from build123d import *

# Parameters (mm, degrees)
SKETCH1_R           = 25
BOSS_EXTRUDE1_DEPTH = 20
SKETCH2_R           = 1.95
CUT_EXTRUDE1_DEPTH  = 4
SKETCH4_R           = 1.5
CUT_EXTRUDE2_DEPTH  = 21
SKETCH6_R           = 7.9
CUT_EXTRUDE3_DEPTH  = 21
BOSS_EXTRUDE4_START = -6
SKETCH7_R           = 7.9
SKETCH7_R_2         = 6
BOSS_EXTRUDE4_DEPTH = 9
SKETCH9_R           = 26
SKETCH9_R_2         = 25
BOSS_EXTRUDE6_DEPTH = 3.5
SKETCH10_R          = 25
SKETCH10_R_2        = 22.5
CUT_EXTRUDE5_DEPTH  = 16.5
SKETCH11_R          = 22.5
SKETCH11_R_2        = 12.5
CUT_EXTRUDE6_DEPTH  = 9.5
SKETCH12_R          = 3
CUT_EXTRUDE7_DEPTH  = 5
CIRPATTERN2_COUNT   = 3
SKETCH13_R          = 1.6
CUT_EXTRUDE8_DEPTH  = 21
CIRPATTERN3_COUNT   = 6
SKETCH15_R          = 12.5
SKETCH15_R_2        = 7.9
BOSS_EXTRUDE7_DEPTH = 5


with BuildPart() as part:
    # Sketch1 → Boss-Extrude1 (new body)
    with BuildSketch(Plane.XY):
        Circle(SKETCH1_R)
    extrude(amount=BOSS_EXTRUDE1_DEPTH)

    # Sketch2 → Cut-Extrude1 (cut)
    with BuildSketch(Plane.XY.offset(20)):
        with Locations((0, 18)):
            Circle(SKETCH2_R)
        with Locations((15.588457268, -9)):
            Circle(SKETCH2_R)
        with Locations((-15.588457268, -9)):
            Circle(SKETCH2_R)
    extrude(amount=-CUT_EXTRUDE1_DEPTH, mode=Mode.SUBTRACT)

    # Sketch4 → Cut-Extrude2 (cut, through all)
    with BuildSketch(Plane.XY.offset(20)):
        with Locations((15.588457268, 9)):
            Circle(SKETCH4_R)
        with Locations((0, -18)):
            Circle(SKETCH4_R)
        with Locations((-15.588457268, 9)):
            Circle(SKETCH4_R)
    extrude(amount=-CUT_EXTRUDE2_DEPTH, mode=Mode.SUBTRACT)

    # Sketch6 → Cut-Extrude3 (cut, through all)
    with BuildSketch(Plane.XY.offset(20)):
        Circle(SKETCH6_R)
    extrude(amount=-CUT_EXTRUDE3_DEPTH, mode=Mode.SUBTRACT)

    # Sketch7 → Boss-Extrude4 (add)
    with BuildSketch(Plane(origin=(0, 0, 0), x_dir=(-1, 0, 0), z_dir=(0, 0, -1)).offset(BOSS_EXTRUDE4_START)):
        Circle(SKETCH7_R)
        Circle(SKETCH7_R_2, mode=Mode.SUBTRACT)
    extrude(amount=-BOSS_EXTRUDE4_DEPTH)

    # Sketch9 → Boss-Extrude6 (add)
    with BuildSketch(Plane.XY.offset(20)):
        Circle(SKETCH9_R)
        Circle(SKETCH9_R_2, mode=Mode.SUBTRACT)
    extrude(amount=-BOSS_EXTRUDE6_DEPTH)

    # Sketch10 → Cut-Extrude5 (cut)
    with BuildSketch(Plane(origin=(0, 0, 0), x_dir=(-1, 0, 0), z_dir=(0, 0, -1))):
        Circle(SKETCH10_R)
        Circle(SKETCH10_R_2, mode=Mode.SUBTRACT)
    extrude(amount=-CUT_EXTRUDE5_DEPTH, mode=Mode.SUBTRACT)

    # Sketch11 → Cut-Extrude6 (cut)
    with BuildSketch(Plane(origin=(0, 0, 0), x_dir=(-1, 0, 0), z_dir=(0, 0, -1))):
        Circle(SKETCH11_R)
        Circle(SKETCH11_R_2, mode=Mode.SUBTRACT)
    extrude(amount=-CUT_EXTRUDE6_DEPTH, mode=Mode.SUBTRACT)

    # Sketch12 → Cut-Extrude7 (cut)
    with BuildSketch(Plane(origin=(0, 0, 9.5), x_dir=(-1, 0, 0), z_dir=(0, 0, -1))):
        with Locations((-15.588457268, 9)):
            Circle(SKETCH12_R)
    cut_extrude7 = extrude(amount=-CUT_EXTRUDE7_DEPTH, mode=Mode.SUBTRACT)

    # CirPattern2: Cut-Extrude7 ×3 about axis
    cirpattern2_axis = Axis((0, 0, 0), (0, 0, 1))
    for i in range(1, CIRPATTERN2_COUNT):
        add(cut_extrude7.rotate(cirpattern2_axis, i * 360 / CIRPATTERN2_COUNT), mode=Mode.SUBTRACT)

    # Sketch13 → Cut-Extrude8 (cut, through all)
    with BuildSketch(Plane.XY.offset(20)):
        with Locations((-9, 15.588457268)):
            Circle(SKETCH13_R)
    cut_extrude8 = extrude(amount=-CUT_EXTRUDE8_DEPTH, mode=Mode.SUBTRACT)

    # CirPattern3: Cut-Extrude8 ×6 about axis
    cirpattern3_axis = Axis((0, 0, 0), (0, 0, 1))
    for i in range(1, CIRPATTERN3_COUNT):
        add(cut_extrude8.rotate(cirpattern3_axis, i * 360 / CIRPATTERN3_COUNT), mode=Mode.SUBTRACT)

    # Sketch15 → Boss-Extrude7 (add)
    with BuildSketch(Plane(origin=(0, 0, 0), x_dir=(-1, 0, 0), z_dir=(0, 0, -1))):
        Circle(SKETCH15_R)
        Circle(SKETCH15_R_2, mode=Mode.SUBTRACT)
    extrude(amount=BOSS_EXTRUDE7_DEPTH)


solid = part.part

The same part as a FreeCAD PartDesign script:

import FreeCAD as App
import Part
import Sketcher
Q = App.Units.Quantity

doc = App.newDocument("Part")
body = doc.addObject("PartDesign::Body", "Body")

# Sketch on XY plane
sketch1 = body.newObject("Sketcher::SketchObject", "Sketch")
sketch1.AttachmentSupport = (doc.getObject("XY_Plane"), [""])
sketch1.MapMode = "FlatFace"
sketch1.addGeometry(Part.Circle(App.Vector(0, 0, 0), App.Vector(0, 0, 1), 25), False)
sketch1.addConstraint(Sketcher.Constraint("Coincident", 0, 3, -1, 1))
sketch1.addConstraint(Sketcher.Constraint("Diameter", 0, Q("50 mm")))
pad1 = body.newObject("PartDesign::Pad", "Pad")
pad1.Profile = sketch1
pad1.Length = 20

# Sketch on XY plane
sketch2 = body.newObject("Sketcher::SketchObject", "Sketch001")
sketch2.AttachmentSupport = (doc.getObject("XY_Plane"), [""])
sketch2.MapMode = "FlatFace"
sketch2.AttachmentOffset = App.Placement(App.Vector(0, 0, 20), App.Rotation())
sketch2.addGeometry(Part.Circle(App.Vector(0, 18, 0), App.Vector(0, 0, 1), 1.9), False)
sketch2.addGeometry(Part.Circle(App.Vector(15.6, -9, 0), App.Vector(0, 0, 1), 1.9), False)
sketch2.addGeometry(Part.Circle(App.Vector(-15.6, -9, 0), App.Vector(0, 0, 1), 1.9), False)
sketch2.addConstraint(Sketcher.Constraint("Equal", 0, 1))
sketch2.addConstraint(Sketcher.Constraint("Equal", 1, 2))
sketch2.addConstraint(Sketcher.Constraint("Symmetric", 1, 3, 2, 3, -2))
sketch2.addConstraint(Sketcher.Constraint("PointOnObject", 0, 3, -2))
sketch2.addConstraint(Sketcher.Constraint("Diameter", 0, Q("3.9 mm")))
sketch2.addConstraint(Sketcher.Constraint("DistanceY", -1, 1, 0, 3, Q("18 mm")))
sketch2.addConstraint(Sketcher.Constraint("DistanceY", 1, 3, -1, 1, Q("9 mm")))
sketch2.addConstraint(Sketcher.Constraint("DistanceX", -1, 1, 1, 3, Q("15.588457 mm")))
pocket1 = body.newObject("PartDesign::Pocket", "Pocket")
pocket1.Profile = sketch2
pocket1.Length = 4

# Sketch on XY plane
sketch3 = body.newObject("Sketcher::SketchObject", "Sketch002")
sketch3.AttachmentSupport = (doc.getObject("XY_Plane"), [""])
sketch3.MapMode = "FlatFace"
sketch3.AttachmentOffset = App.Placement(App.Vector(0, 0, 20), App.Rotation())
sketch3.addGeometry(Part.Circle(App.Vector(15.6, 9, 0), App.Vector(0, 0, 1), 1.5), False)
sketch3.addGeometry(Part.Circle(App.Vector(0, -18, 0), App.Vector(0, 0, 1), 1.5), False)
sketch3.addGeometry(Part.Circle(App.Vector(-15.6, 9, 0), App.Vector(0, 0, 1), 1.5), False)
sketch3.addConstraint(Sketcher.Constraint("Equal", 0, 1))
sketch3.addConstraint(Sketcher.Constraint("Equal", 1, 2))
sketch3.addConstraint(Sketcher.Constraint("Symmetric", 0, 3, 2, 3, -2))
sketch3.addConstraint(Sketcher.Constraint("PointOnObject", 1, 3, -2))
sketch3.addConstraint(Sketcher.Constraint("Diameter", 0, Q("3 mm")))
sketch3.addConstraint(Sketcher.Constraint("DistanceY", -1, 1, 0, 3, Q("9 mm")))
sketch3.addConstraint(Sketcher.Constraint("DistanceY", 1, 3, -1, 1, Q("18 mm")))
sketch3.addConstraint(Sketcher.Constraint("DistanceX", -1, 1, 0, 3, Q("15.588457 mm")))
pocket2 = body.newObject("PartDesign::Pocket", "Pocket001")
pocket2.Profile = sketch3
pocket2.Type = "ThroughAll"

# Sketch on XY plane
sketch4 = body.newObject("Sketcher::SketchObject", "Sketch003")
sketch4.AttachmentSupport = (doc.getObject("XY_Plane"), [""])
sketch4.MapMode = "FlatFace"
sketch4.AttachmentOffset = App.Placement(App.Vector(0, 0, 20), App.Rotation())
sketch4.addGeometry(Part.Circle(App.Vector(0, 0, 0), App.Vector(0, 0, 1), 8), False)
sketch4.addConstraint(Sketcher.Constraint("Coincident", 0, 3, -1, 1))
sketch4.addConstraint(Sketcher.Constraint("Diameter", 0, Q("15.8 mm")))
pocket3 = body.newObject("PartDesign::Pocket", "Pocket002")
pocket3.Profile = sketch4
pocket3.Type = "ThroughAll"

# Sketch on XY plane
sketch5 = body.newObject("Sketcher::SketchObject", "Sketch004")
sketch5.AttachmentSupport = (doc.getObject("XY_Plane"), [""])
sketch5.MapMode = "FlatFace"
sketch5.AttachmentOffset = App.Placement(App.Vector(0, 0, 6), App.Rotation())
sketch5.addGeometry(Part.Circle(App.Vector(0, 0, 0), App.Vector(0, 0, 1), 8), False)
sketch5.addGeometry(Part.Circle(App.Vector(0, 0, 0), App.Vector(0, 0, 1), 6), False)
sketch5.addConstraint(Sketcher.Constraint("Coincident", 0, 3, -1, 1))
sketch5.addConstraint(Sketcher.Constraint("Coincident", 1, 3, -1, 1))
sketch5.addConstraint(Sketcher.Constraint("Diameter", 1, Q("12 mm")))
sketch5.addConstraint(Sketcher.Constraint("Diameter", 0, Q("15.8 mm")))
pad2 = body.newObject("PartDesign::Pad", "Pad001")
pad2.Profile = sketch5
pad2.Length = 9

# Sketch on XY plane
sketch6 = body.newObject("Sketcher::SketchObject", "Sketch005")
sketch6.AttachmentSupport = (doc.getObject("XY_Plane"), [""])
sketch6.MapMode = "FlatFace"
sketch6.AttachmentOffset = App.Placement(App.Vector(0, 0, 20), App.Rotation())
sketch6.addGeometry(Part.Circle(App.Vector(0, 0, 0), App.Vector(0, 0, 1), 26), False)
sketch6.addGeometry(Part.Circle(App.Vector(0, 0, 0), App.Vector(0, 0, 1), 25), False)
sketch6.addConstraint(Sketcher.Constraint("Coincident", 0, 3, -1, 1))
sketch6.addConstraint(Sketcher.Constraint("Coincident", 1, 3, -1, 1))
sketch6.addConstraint(Sketcher.Constraint("Diameter", 0, Q("52 mm")))
sketch6.addConstraint(Sketcher.Constraint("Diameter", 1, Q("50 mm")))
pad3 = body.newObject("PartDesign::Pad", "Pad002")
pad3.Profile = sketch6
pad3.Length = 3.5
pad3.Reversed = True

# Sketch on XY plane
sketch7 = body.newObject("Sketcher::SketchObject", "Sketch006")
sketch7.AttachmentSupport = (doc.getObject("XY_Plane"), [""])
sketch7.MapMode = "FlatFace"
sketch7.addGeometry(Part.Circle(App.Vector(0, 0, 0), App.Vector(0, 0, 1), 25), False)
sketch7.addGeometry(Part.Circle(App.Vector(0, 0, 0), App.Vector(0, 0, 1), 22), False)
sketch7.addConstraint(Sketcher.Constraint("Coincident", 0, 3, -1, 1))
sketch7.addConstraint(Sketcher.Constraint("Coincident", 1, 3, -1, 1))
sketch7.addConstraint(Sketcher.Constraint("Diameter", 0, Q("50 mm")))
sketch7.addConstraint(Sketcher.Constraint("Diameter", 1, Q("45 mm")))
pocket4 = body.newObject("PartDesign::Pocket", "Pocket003")
pocket4.Profile = sketch7
pocket4.Length = 16.5
pocket4.Reversed = True

# Sketch on XY plane
sketch8 = body.newObject("Sketcher::SketchObject", "Sketch007")
sketch8.AttachmentSupport = (doc.getObject("XY_Plane"), [""])
sketch8.MapMode = "FlatFace"
sketch8.addGeometry(Part.Circle(App.Vector(0, 0, 0), App.Vector(0, 0, 1), 22), False)
sketch8.addGeometry(Part.Circle(App.Vector(0, 0, 0), App.Vector(0, 0, 1), 12), False)
sketch8.addConstraint(Sketcher.Constraint("Coincident", 0, 3, -1, 1))
sketch8.addConstraint(Sketcher.Constraint("Coincident", 1, 3, -1, 1))
sketch8.addConstraint(Sketcher.Constraint("Diameter", 0, Q("45 mm")))
sketch8.addConstraint(Sketcher.Constraint("Diameter", 1, Q("25 mm")))
pocket5 = body.newObject("PartDesign::Pocket", "Pocket004")
pocket5.Profile = sketch8
pocket5.Length = 9.5
pocket5.Reversed = True

# Sketch on XY plane
sketch9 = body.newObject("Sketcher::SketchObject", "Sketch008")
sketch9.AttachmentSupport = (doc.getObject("XY_Plane"), [""])
sketch9.MapMode = "FlatFace"
sketch9.AttachmentOffset = App.Placement(App.Vector(0, 0, 9.5), App.Rotation())
sketch9.addGeometry(Part.Circle(App.Vector(15.6, 9, 0), App.Vector(0, 0, 1), 3), False)
sketch9.addConstraint(Sketcher.Constraint("Diameter", 0, Q("6 mm")))
sketch9.addConstraint(Sketcher.Constraint("DistanceY", -1, 1, 0, 3, Q("9 mm")))
sketch9.addConstraint(Sketcher.Constraint("DistanceX", -1, 1, 0, 3, Q("15.588457 mm")))
pocket6 = body.newObject("PartDesign::Pocket", "Pocket005")
pocket6.Profile = sketch9
pocket6.Length = 5
pocket6.Reversed = True
doc.recompute()

polarpattern = body.newObject("PartDesign::PolarPattern", "PolarPattern")
polarpattern.Originals = [pocket6]
polarpattern.Axis = (doc.getObject("Z_Axis"), [""])
polarpattern.Angle = 360
polarpattern.Occurrences = 3
body.Tip = polarpattern

# Sketch on XY plane
sketch10 = body.newObject("Sketcher::SketchObject", "Sketch009")
sketch10.AttachmentSupport = (doc.getObject("XY_Plane"), [""])
sketch10.MapMode = "FlatFace"
sketch10.AttachmentOffset = App.Placement(App.Vector(0, 0, 20), App.Rotation())
sketch10.addGeometry(Part.Circle(App.Vector(-9, 15.6, 0), App.Vector(0, 0, 1), 1.6), False)
sketch10.addConstraint(Sketcher.Constraint("Diameter", 0, Q("3.2 mm")))
sketch10.addConstraint(Sketcher.Constraint("DistanceX", 0, 3, -1, 1, Q("9 mm")))
sketch10.addConstraint(Sketcher.Constraint("DistanceY", -1, 1, 0, 3, Q("15.588457 mm")))
pocket7 = body.newObject("PartDesign::Pocket", "Pocket006")
pocket7.Profile = sketch10
pocket7.Type = "ThroughAll"
doc.recompute()

polarpattern2 = body.newObject("PartDesign::PolarPattern", "PolarPattern001")
polarpattern2.Originals = [pocket7]
polarpattern2.Axis = (doc.getObject("Z_Axis"), [""])
polarpattern2.Angle = 360
polarpattern2.Occurrences = 6
body.Tip = polarpattern2

# Sketch on XY plane
sketch11 = body.newObject("Sketcher::SketchObject", "Sketch010")
sketch11.AttachmentSupport = (doc.getObject("XY_Plane"), [""])
sketch11.MapMode = "FlatFace"
sketch11.addGeometry(Part.Circle(App.Vector(0, 0, 0), App.Vector(0, 0, 1), 12), False)
sketch11.addGeometry(Part.Circle(App.Vector(0, 0, 0), App.Vector(0, 0, 1), 8), False)
sketch11.addConstraint(Sketcher.Constraint("Coincident", 0, 3, -1, 1))
sketch11.addConstraint(Sketcher.Constraint("Coincident", 1, 3, -1, 1))
sketch11.addConstraint(Sketcher.Constraint("Diameter", 0, Q("25 mm")))
sketch11.addConstraint(Sketcher.Constraint("Diameter", 1, Q("15.8 mm")))
pad4 = body.newObject("PartDesign::Pad", "Pad003")
pad4.Profile = sketch11
pad4.Length = 5
pad4.Reversed = True

doc.recompute()
